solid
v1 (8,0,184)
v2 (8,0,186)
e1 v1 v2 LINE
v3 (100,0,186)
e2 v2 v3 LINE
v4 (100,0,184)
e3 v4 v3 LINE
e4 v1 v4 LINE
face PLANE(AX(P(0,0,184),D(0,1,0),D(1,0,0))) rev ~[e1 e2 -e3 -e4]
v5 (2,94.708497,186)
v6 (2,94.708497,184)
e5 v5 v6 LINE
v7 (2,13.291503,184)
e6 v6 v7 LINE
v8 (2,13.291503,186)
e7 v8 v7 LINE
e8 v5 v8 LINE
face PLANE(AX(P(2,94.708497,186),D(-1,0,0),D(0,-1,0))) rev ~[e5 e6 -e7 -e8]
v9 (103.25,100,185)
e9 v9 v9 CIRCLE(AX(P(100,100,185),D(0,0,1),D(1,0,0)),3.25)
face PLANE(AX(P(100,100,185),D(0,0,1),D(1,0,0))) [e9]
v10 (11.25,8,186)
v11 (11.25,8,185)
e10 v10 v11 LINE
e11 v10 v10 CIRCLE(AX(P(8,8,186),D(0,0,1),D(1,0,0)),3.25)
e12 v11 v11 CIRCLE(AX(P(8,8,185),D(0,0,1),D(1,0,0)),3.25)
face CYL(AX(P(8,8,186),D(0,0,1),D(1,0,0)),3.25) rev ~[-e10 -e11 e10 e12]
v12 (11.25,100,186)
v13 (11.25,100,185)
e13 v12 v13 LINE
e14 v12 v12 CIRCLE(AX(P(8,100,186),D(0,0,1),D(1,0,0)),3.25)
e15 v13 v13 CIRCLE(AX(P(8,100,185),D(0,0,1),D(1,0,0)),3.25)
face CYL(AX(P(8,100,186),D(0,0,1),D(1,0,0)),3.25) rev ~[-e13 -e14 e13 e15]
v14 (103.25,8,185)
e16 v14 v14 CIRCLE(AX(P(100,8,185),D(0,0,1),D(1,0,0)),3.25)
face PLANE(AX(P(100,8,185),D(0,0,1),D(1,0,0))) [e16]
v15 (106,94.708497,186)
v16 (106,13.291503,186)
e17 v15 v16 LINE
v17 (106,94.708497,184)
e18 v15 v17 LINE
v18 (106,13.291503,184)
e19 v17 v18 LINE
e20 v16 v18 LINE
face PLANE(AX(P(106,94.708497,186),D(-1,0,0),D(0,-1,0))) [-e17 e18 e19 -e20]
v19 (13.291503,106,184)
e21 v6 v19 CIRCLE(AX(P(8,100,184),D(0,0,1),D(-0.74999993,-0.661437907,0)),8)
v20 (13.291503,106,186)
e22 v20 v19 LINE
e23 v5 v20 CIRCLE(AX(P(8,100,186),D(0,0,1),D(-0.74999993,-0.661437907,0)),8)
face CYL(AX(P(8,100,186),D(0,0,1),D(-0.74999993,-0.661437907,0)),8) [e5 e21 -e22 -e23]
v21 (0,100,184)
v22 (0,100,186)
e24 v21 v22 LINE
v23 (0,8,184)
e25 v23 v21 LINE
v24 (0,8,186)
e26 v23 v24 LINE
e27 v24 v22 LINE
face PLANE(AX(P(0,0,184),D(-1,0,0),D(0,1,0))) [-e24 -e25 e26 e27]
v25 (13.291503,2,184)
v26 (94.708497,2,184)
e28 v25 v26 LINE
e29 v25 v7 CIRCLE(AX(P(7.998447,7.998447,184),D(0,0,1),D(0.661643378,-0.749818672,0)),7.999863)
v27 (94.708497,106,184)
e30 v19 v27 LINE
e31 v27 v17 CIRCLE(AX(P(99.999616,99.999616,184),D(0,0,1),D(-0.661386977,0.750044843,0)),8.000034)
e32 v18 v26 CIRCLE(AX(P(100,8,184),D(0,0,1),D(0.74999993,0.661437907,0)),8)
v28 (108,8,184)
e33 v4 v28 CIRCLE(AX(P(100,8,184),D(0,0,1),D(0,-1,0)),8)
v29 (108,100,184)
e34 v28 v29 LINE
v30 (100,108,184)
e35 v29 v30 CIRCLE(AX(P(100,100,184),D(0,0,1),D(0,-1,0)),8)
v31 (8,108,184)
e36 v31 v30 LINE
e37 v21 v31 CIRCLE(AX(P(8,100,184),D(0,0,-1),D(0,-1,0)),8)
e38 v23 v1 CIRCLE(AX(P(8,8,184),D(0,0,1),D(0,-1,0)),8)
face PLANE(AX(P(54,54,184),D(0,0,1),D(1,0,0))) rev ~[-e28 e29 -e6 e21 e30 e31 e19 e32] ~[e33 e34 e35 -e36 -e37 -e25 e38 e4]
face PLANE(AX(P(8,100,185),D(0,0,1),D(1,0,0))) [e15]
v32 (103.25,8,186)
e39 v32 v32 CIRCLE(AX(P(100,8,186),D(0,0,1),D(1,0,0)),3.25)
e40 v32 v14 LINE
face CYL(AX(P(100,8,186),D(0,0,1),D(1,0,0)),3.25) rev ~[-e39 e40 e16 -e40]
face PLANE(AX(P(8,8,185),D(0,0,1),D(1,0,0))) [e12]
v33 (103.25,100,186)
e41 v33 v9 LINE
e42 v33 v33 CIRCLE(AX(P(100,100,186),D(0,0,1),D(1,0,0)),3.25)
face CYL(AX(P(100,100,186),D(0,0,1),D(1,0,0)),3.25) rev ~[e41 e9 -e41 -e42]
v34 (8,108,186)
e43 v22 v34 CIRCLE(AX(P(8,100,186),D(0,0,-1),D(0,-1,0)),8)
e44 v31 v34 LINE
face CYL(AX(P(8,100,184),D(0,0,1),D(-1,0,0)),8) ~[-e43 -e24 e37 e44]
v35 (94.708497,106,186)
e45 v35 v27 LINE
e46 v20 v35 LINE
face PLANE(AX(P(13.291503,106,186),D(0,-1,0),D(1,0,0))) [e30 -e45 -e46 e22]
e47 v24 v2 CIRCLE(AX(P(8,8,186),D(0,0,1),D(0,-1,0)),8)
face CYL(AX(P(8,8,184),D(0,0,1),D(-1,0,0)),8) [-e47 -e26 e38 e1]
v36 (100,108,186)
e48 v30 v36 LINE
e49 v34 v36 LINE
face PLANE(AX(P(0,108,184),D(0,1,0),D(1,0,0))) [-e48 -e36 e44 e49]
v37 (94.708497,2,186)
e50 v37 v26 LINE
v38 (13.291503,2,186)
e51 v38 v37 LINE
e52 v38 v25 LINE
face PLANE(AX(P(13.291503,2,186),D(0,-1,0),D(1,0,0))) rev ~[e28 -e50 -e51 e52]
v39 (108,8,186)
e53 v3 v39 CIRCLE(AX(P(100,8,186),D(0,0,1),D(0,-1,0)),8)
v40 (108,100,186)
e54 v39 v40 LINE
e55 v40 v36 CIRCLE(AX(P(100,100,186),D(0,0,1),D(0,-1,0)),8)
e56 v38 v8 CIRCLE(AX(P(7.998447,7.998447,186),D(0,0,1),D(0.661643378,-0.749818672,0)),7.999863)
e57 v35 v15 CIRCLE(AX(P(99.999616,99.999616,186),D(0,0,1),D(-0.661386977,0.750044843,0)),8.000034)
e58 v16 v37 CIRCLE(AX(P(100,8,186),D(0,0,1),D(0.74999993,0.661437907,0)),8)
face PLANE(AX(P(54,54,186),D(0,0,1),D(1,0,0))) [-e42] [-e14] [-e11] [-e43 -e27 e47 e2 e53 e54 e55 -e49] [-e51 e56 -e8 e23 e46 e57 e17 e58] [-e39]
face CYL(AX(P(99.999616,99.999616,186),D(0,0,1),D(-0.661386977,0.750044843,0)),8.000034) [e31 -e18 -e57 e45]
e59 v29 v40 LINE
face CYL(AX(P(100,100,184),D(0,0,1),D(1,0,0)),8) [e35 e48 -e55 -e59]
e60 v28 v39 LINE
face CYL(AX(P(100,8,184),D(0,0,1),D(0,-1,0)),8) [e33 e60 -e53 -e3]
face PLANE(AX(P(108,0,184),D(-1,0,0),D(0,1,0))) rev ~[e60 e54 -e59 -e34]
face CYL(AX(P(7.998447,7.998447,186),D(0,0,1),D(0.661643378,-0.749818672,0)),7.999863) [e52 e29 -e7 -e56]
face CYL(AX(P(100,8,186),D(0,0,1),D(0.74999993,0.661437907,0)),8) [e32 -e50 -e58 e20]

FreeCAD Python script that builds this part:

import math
import FreeCAD as App
import Part
import Sketcher

V = App.Vector
Q = App.Units.Quantity


def edges_at(feature, points):
    """Names of the edges that pass closest to the given points."""
    edges = feature.Shape.Edges
    near = lambda p: min(range(len(edges)), key=lambda i: edges[i].distToShape(Part.Vertex(*p))[0])
    return sorted({f"Edge{near(p) + 1}" for p in points})


def add_polygon(sketch, points):
    """Adds a closed chain of lines whose ends are joined by coincident constraints."""
    first, n = sketch.GeometryCount, len(points)
    for a, b in zip(points, points[1:] + points[:1]):
        sketch.addGeometry(Part.LineSegment(App.Vector(*a, 0), App.Vector(*b, 0)), False)
    for i in range(n):
        sketch.addConstraint(Sketcher.Constraint("Coincident", first + i, 2, first + (i + 1) % n, 1))

doc = App.newDocument("Part")
params = doc.addObject("Spreadsheet::Sheet", "Params")
for row, (alias, value) in enumerate([
    ("sketch1_width", "108 mm"),
    ("pad1_length", "2 mm"),
    ("fillet_radius", "8 mm"),
    ("sketch2_diameter", "6.5 mm"),
    ("pocket1_length", "1 mm"),
    ("sketch3_radius", "8 mm"),
], start=1):
    params.set(f"A{row}", alias)
    params.set(f"B{row}", "=" + value)
    params.setAlias(f"B{row}", alias)

body = doc.addObject("PartDesign::Body", "Body")

# Sketch on XY plane
sketch1 = body.newObject("Sketcher::SketchObject", "Sketch")
sketch1.AttachmentSupport = (doc.getObject("XY_Plane"), [""])
sketch1.MapMode = "FlatFace"
add_polygon(sketch1, [(0, 108), (0, 0), (108, 0), (108, 108)])  # lines 0-3
sketch1.addConstraint(Sketcher.Constraint("Vertical", 0))
sketch1.addConstraint(Sketcher.Constraint("Horizontal", 1))
sketch1.addConstraint(Sketcher.Constraint("Vertical", 2))
sketch1.addConstraint(Sketcher.Constraint("Horizontal", 3))
sketch1.addConstraint(Sketcher.Constraint("Coincident", 0, 2, -1, 1))
sketch1.addConstraint(Sketcher.Constraint("Equal", 3, 0))
sketch1.addConstraint(Sketcher.Constraint("DistanceX", 1, 1, 1, 2, Q("108 mm")))
sketch1.setExpression("Constraints[10]", "Params.sketch1_width")
pad1 = body.newObject("PartDesign::Pad", "Pad")
pad1.Profile = sketch1
pad1.setExpression("Length", "Params.pad1_length")
doc.recompute()

fillet = body.newObject("PartDesign::Fillet", "Fillet")
fillet.Base = (pad1, edges_at(pad1, [
    (108, 0, 1),
    (108, 108, 1),
    (0, 108, 1),
    (0, 0, 1),
]))
fillet.setExpression("Radius", "Params.fillet_radius")

# Sketch on XY plane
sketch2 = body.newObject("Sketcher::SketchObject", "Sketch001")
sketch2.AttachmentSupport = (doc.getObject("XY_Plane"), [""])
sketch2.MapMode = "FlatFace"
sketch2.AttachmentOffset = App.Placement(V(0, 0, 2), App.Rotation())
sketch2.addGeometry(Part.Circle(V(8, 8, 0), V(0, 0, 1), 3.2), False)
sketch2.addGeometry(Part.Circle(V(100, 8, 0), V(0, 0, 1), 3.2), False)
sketch2.addGeometry(Part.Circle(V(100, 100, 0), V(0, 0, 1), 3.2), False)
sketch2.addGeometry(Part.Circle(V(8, 100, 0), V(0, 0, 1), 3.2), False)
sketch2.addConstraint(Sketcher.Constraint("Equal", 0, 1))
sketch2.addConstraint(Sketcher.Constraint("Equal", 1, 2))
sketch2.addConstraint(Sketcher.Constraint("Equal", 2, 3))
sketch2.addConstraint(Sketcher.Constraint("Horizontal", 0, 3, 1, 3))
sketch2.addConstraint(Sketcher.Constraint("Horizontal", 2, 3, 3, 3))
sketch2.addConstraint(Sketcher.Constraint("Vertical", 1, 3, 2, 3))
sketch2.addConstraint(Sketcher.Constraint("Vertical", 0, 3, 3, 3))
sketch2.addConstraint(Sketcher.Constraint("Diameter", 0, Q("6.5 mm")))
sketch2.addConstraint(Sketcher.Constraint("DistanceX", -1, 1, 0, 3, Q("8 mm")))
sketch2.addConstraint(Sketcher.Constraint("DistanceY", -1, 1, 0, 3, Q("8 mm")))
sketch2.addConstraint(Sketcher.Constraint("DistanceX", -1, 1, 1, 3, Q("100 mm")))
sketch2.addConstraint(Sketcher.Constraint("DistanceY", -1, 1, 2, 3, Q("100 mm")))
sketch2.setExpression("Constraints[7]", "Params.sketch2_diameter")
pocket1 = body.newObject("PartDesign::Pocket", "Pocket")
pocket1.Profile = sketch2
pocket1.setExpression("Length", "Params.pocket1_length")

# Sketch on XY plane
sketch3 = body.newObject("Sketcher::SketchObject", "Sketch002")
sketch3.AttachmentSupport = (doc.getObject("XY_Plane"), [""])
sketch3.MapMode = "FlatFace"
sketch3.AttachmentOffset = App.Placement(V(0, 0, 2), App.Rotation())
sketch3.addGeometry(Part.LineSegment(V(2, 95, 0), V(2, 13, 0)), False)
sketch3.addGeometry(Part.ArcOfCircle(Part.Circle(V(8, 8, 0), V(0, 0, 1), 8), math.radians(-49), math.radians(139)), False)
sketch3.addGeometry(Part.LineSegment(V(13, 2, 0), V(95, 2, 0)), False)
sketch3.addGeometry(Part.ArcOfCircle(Part.Circle(V(100, 8, 0), V(0, 0, 1), 8), math.radians(41), math.radians(229)), False)
sketch3.addGeometry(Part.LineSegment(V(106, 13, 0), V(106, 95, 0)), False)
sketch3.addGeometry(Part.ArcOfCircle(Part.Circle(V(100, 100, 0), V(0, 0, 1), 8), math.radians(131), math.radians(319)), False)
sketch3.addGeometry(Part.LineSegment(V(95, 106, 0), V(13, 106, 0)), False)
sketch3.addGeometry(Part.ArcOfCircle(Part.Circle(V(8, 100, 0), V(0, 0, 1), 8), math.radians(-139), math.radians(49)), False)
sketch3.addConstraint(Sketcher.Constraint("Coincident", 0, 2, 1, 2))
sketch3.addConstraint(Sketcher.Constraint("Coincident", 1, 1, 2, 1))
sketch3.addConstraint(Sketcher.Constraint("Coincident", 2, 2, 3, 2))
sketch3.addConstraint(Sketcher.Constraint("Coincident", 3, 1, 4, 1))
sketch3.addConstraint(Sketcher.Constraint("Coincident", 4, 2, 5, 2))
sketch3.addConstraint(Sketcher.Constraint("Coincident", 5, 1, 6, 1))
sketch3.addConstraint(Sketcher.Constraint("Coincident", 6, 2, 7, 2))
sketch3.addConstraint(Sketcher.Constraint("Coincident", 7, 1, 0, 1))
sketch3.addConstraint(Sketcher.Constraint("Vertical", 0))
sketch3.addConstraint(Sketcher.Constraint("Horizontal", 2))
sketch3.addConstraint(Sketcher.Constraint("Vertical", 4))
sketch3.addConstraint(Sketcher.Constraint("Horizontal", 6))
sketch3.addConstraint(Sketcher.Constraint("Equal", 3, 7))
sketch3.addConstraint(Sketcher.Constraint("Horizontal", 0, 2, 3, 1))
sketch3.addConstraint(Sketcher.Constraint("Horizontal", 4, 2, 7, 1))
sketch3.addConstraint(Sketcher.Constraint("Vertical", 2, 2, 5, 1))
sketch3.addConstraint(Sketcher.Constraint("Vertical", 1, 1, 6, 2))
sketch3.addConstraint(Sketcher.Constraint("Equal", 6, 0))
sketch3.addConstraint(Sketcher.Constraint("Radius", 3, Q("8 mm")))
sketch3.addConstraint(Sketcher.Constraint("DistanceX", -1, 1, 3, 3, Q("100 mm")))
sketch3.addConstraint(Sketcher.Constraint("DistanceY", -1, 1, 3, 3, Q("8 mm")))
sketch3.addConstraint(Sketcher.Constraint("DistanceX", -1, 1, 7, 3, Q("8 mm")))
sketch3.addConstraint(Sketcher.Constraint("DistanceY", -1, 1, 7, 3, Q("100 mm")))
sketch3.addConstraint(Sketcher.Constraint("DistanceX", -1, 1, 0, 2, Q("2 mm")))
sketch3.addConstraint(Sketcher.Constraint("DistanceY", -1, 1, 1, 1, Q("2 mm")))
sketch3.addConstraint(Sketcher.Constraint("DistanceX", -1, 1, 3, 1, Q("106 mm")))
sketch3.addConstraint(Sketcher.Constraint("Radius", 1, Q("7.999863 mm")))
sketch3.addConstraint(Sketcher.Constraint("Radius", 5, Q("8.000034 mm")))
sketch3.setExpression("Constraints[18]", "Params.sketch3_radius")
pocket2 = body.newObject("PartDesign::Pocket", "Pocket001")
pocket2.Profile = sketch3
pocket2.Type = "ThroughAll"
body2 = doc.addObject("PartDesign::Body", "Body001")
doc.recompute()

body.Placement = App.Placement(V(0, 0, 184), App.Rotation(V(0, 0, 1), 0))
boolean = body2.newObject("PartDesign::Boolean", "Boolean")
boolean.Type = "Fuse"
boolean.addObjects([body])

doc.recompute()
